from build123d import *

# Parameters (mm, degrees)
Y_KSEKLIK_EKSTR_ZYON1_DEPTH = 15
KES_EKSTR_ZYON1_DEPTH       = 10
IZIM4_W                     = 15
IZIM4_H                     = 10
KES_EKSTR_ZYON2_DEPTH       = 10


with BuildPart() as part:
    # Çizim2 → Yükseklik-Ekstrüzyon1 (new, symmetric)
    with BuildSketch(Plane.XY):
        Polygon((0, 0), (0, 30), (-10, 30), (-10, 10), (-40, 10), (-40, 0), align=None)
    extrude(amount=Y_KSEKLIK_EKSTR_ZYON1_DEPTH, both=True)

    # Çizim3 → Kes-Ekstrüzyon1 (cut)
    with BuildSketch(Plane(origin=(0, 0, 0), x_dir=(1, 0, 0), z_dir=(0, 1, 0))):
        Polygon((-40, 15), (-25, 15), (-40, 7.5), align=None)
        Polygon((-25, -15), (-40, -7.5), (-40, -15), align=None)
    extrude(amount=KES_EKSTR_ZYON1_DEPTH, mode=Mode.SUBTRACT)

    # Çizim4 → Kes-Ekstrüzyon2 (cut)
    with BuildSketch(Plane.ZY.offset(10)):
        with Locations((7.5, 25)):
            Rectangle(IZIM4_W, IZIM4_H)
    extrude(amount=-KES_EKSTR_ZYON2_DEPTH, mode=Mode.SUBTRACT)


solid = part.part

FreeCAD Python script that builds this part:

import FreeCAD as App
import Part
import Sketcher


def add_polygon(sketch, points):
    """Adds a closed chain of lines whose ends are joined by coincident constraints."""
    first, n = sketch.GeometryCount, len(points)
    for a, b in zip(points, points[1:] + points[:1]):
        sketch.addGeometry(Part.LineSegment(App.Vector(*a, 0), App.Vector(*b, 0)), False)
    for i in range(n):
        sketch.addConstraint(Sketcher.Constraint("Coincident", first + i, 2, first + (i + 1) % n, 1))

doc = App.newDocument("Part")
body = doc.addObject("PartDesign::Body", "Body")

# Sketch on XY plane
sketch1 = body.newObject("Sketcher::SketchObject", "Sketch")
sketch1.AttachmentSupport = (doc.getObject("XY_Plane"), [""])
sketch1.MapMode = "FlatFace"
add_polygon(sketch1, [(0, 0), (0, 30), (-10, 30), (-10, 10), (-40, 10), (-40, 0)])  # lines 0-5
sketch1.addConstraint(Sketcher.Constraint("Vertical", 0))
sketch1.addConstraint(Sketcher.Constraint("Horizontal", 1))
sketch1.addConstraint(Sketcher.Constraint("Vertical", 2))
sketch1.addConstraint(Sketcher.Constraint("Horizontal", 3))
sketch1.addConstraint(Sketcher.Constraint("Vertical", 4))
sketch1.addConstraint(Sketcher.Constraint("Horizontal", 5))
sketch1.addConstraint(Sketcher.Constraint("Coincident", 5, 2, -1, 1))
sketch1.addConstraint(Sketcher.Constraint("Equal", 3, 0))
sketch1.addConstraint(Sketcher.Constraint("Equal", 1, 4))
sketch1.addConstraint(Sketcher.Constraint("DistanceX", 1, 2, 1, 1, 10.0))
sketch1.addConstraint(Sketcher.Constraint("DistanceX", 3, 2, 3, 1, 30.0))
pad1 = body.newObject("PartDesign::Pad", "Pad")
pad1.Profile = sketch1
pad1.Length = 30
pad1.Midplane = True

# Sketch on XZ plane
sketch2 = body.newObject("Sketcher::SketchObject", "Sketch001")
sketch2.AttachmentSupport = (doc.getObject("XZ_Plane"), [""])
sketch2.MapMode = "FlatFace"
add_polygon(sketch2, [(-25, -15), (-40, -15), (-40, -8)])  # lines 0-2
add_polygon(sketch2, [(-25, 15), (-40, 8), (-40, 15)])  # lines 3-5
sketch2.addConstraint(Sketcher.Constraint("Horizontal", 0))
sketch2.addConstraint(Sketcher.Constraint("Vertical", 1))
sketch2.addConstraint(Sketcher.Constraint("Vertical", 4))
sketch2.addConstraint(Sketcher.Constraint("Horizontal", 5))
sketch2.addConstraint(Sketcher.Constraint("Symmetric", 1, 2, 3, 2, -1))
sketch2.addConstraint(Sketcher.Constraint("Symmetric", 2, 2, 5, 2, -1))
sketch2.addConstraint(Sketcher.Constraint("DistanceX", 0, 2, 0, 1, 15.0))
sketch2.addConstraint(Sketcher.Constraint("DistanceY", 1, 1, 1, 2, 7.5))
sketch2.addConstraint(Sketcher.Constraint("DistanceX", 0, 2, -1, 1, 40.0))
sketch2.addConstraint(Sketcher.Constraint("DistanceY", 0, 2, -1, 1, 15.0))
pocket1 = body.newObject("PartDesign::Pocket", "Pocket")
pocket1.Profile = sketch2
pocket1.Length = 10

# Sketch on YZ plane
sketch3 = body.newObject("Sketcher::SketchObject", "Sketch002")
sketch3.AttachmentSupport = (doc.getObject("YZ_Plane"), [""])
sketch3.MapMode = "FlatFace"
sketch3.AttachmentOffset = App.Placement(App.Vector(0, 0, -10), App.Rotation())
add_polygon(sketch3, [(30, 0), (20, 0), (20, 15), (30, 15)])  # lines 0-3
sketch3.addConstraint(Sketcher.Constraint("Horizontal", 0))
sketch3.addConstraint(Sketcher.Constraint("Vertical", 1))
sketch3.addConstraint(Sketcher.Constraint("Horizontal", 2))
sketch3.addConstraint(Sketcher.Constraint("Vertical", 3))
sketch3.addConstraint(Sketcher.Constraint("PointOnObject", 0, 2, -1))
sketch3.addConstraint(Sketcher.Constraint("DistanceX", 0, 2, 0, 1, 10.0))
sketch3.addConstraint(Sketcher.Constraint("DistanceY", 1, 1, 1, 2, 15.0))
sketch3.addConstraint(Sketcher.Constraint("DistanceX", -1, 1, 0, 2, 20.0))
pocket2 = body.newObject("PartDesign::Pocket", "Pocket001")
pocket2.Profile = sketch3
pocket2.Length = 10
pocket2.Reversed = True

doc.recompute()
